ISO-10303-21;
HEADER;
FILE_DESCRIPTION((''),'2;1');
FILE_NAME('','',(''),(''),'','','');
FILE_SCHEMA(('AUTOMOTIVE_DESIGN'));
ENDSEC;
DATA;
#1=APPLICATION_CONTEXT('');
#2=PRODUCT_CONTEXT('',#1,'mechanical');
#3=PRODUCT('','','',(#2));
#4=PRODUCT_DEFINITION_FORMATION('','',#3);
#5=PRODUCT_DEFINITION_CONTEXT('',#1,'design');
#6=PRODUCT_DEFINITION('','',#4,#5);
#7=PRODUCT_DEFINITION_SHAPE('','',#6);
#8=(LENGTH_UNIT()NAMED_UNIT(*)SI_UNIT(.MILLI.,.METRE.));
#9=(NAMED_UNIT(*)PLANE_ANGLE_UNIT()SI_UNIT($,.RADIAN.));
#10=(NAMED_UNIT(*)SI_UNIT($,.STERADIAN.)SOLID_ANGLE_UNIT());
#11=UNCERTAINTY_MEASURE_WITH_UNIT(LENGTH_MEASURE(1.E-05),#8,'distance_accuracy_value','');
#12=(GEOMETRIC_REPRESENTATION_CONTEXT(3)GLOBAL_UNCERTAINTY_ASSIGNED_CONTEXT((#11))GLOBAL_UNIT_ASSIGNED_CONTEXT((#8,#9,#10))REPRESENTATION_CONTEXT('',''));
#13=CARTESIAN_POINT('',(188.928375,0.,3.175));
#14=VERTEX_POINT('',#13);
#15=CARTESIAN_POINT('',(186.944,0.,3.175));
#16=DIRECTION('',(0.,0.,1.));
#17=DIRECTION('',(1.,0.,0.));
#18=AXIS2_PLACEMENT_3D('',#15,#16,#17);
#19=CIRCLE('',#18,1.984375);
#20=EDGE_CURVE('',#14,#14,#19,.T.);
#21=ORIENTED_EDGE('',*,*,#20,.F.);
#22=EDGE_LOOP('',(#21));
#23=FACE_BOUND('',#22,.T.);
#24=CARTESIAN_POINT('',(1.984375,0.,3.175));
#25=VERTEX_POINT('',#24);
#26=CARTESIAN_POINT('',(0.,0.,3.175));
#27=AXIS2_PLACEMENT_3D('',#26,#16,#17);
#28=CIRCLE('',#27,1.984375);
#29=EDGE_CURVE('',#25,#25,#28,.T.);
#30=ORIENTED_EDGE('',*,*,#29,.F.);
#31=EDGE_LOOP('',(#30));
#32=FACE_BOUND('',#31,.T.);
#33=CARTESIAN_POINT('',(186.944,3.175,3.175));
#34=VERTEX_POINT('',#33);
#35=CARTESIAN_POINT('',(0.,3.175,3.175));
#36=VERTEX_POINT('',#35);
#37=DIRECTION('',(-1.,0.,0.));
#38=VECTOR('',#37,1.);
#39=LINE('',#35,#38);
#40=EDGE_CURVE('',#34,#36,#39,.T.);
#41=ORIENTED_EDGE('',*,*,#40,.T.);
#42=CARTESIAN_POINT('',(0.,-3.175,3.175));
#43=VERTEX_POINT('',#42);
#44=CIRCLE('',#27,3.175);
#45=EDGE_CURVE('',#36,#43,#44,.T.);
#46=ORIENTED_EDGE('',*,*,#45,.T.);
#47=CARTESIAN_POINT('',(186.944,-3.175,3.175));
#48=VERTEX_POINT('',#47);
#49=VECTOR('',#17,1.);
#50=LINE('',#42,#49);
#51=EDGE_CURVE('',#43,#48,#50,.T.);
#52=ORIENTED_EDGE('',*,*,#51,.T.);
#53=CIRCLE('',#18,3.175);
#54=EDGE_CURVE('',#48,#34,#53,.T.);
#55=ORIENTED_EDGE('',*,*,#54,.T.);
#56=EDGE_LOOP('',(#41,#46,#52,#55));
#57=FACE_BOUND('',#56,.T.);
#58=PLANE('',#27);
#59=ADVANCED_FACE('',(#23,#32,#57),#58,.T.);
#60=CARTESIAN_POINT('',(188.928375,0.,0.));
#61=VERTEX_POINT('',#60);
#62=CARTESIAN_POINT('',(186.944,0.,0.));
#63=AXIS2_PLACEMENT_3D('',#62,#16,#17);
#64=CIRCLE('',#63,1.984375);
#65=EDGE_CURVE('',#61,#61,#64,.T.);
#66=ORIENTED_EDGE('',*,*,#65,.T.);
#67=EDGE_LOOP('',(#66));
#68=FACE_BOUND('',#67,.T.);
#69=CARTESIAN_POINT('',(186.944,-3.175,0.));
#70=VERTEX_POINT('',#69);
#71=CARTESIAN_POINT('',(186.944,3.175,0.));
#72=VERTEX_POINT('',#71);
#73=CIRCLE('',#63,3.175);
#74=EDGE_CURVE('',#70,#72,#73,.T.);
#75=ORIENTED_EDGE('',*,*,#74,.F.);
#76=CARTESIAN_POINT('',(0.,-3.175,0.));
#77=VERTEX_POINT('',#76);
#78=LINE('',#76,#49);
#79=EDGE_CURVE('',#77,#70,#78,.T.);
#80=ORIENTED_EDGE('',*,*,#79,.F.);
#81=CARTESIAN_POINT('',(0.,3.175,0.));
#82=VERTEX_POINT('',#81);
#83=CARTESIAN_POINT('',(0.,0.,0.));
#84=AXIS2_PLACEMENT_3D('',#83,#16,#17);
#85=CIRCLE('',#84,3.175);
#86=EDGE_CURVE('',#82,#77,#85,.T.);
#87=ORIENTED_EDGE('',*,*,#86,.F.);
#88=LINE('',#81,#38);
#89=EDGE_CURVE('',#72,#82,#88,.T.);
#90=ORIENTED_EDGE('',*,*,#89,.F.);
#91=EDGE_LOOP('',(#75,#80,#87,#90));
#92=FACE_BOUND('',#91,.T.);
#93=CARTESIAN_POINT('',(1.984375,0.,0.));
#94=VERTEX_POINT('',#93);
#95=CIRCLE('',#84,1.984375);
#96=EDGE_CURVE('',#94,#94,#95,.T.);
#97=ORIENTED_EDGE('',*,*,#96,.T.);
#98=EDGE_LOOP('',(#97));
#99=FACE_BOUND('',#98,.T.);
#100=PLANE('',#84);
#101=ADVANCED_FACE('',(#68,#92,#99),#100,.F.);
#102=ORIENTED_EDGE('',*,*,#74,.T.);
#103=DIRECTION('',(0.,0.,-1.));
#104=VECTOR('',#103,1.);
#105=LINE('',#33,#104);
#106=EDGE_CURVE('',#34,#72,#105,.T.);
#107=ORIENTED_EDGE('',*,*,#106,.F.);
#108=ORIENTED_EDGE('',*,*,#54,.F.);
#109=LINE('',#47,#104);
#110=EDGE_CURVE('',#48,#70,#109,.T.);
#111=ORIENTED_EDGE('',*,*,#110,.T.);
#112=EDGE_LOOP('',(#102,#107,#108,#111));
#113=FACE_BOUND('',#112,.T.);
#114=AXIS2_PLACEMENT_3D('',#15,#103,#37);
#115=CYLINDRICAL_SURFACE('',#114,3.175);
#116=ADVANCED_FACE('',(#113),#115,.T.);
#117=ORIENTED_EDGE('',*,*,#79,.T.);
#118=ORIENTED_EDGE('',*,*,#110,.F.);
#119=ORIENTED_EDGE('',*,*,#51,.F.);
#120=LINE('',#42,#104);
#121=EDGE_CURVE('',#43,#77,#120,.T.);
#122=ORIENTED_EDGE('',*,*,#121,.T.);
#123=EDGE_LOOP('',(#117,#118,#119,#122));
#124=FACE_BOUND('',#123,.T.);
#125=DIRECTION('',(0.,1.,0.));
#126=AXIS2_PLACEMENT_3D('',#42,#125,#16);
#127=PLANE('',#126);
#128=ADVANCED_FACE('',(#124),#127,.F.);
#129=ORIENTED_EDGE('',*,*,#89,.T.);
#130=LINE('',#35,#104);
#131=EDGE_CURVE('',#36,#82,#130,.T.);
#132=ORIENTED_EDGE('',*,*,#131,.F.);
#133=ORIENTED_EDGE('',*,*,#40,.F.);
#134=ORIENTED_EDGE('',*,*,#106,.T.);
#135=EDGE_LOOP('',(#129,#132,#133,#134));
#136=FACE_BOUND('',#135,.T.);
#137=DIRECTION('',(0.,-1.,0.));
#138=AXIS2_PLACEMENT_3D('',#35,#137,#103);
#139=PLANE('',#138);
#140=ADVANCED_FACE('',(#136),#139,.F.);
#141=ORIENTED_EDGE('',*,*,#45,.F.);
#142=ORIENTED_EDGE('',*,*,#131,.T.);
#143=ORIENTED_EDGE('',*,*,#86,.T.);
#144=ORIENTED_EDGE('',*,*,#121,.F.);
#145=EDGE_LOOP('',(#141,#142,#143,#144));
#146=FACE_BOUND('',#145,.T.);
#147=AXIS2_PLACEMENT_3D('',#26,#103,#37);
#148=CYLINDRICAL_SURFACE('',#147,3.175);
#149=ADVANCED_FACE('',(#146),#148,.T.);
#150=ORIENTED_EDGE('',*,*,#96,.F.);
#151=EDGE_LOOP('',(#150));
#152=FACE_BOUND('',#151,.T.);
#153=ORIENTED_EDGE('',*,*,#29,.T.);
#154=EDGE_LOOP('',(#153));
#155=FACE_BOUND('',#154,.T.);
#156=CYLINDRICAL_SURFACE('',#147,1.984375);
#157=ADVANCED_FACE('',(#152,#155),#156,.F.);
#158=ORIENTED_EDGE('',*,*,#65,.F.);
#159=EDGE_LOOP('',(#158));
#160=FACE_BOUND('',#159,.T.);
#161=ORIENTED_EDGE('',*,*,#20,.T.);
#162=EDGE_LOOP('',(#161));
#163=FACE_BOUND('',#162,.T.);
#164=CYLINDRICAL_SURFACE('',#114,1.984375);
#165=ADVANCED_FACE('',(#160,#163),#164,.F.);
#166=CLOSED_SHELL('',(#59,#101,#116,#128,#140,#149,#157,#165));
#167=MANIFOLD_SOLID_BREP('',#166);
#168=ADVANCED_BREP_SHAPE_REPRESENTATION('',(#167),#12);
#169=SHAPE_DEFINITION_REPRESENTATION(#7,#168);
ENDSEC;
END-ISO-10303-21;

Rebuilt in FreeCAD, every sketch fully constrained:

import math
import FreeCAD as App
import Part
import Sketcher

V = App.Vector
Q = App.Units.Quantity

doc = App.newDocument("Part")
body = doc.addObject("PartDesign::Body", "Body")

sketch1 = body.newObject("Sketcher::SketchObject", "Sketch")
sketch1.AttachmentSupport = (doc.getObject("XY_Plane"), [""])
sketch1.MapMode = "FlatFace"
sketch1.addGeometry([
    Part.LineSegment(V(0, -3.2, 0), V(186.9, -3.2, 0)),
    Part.ArcOfCircle(Part.Circle(V(186.9, 0, 0), V(0, 0, 1), 3.2), math.radians(-90), math.radians(90)),
    Part.LineSegment(V(186.9, 3.2, 0), V(0, 3.2, 0)),
    Part.ArcOfCircle(Part.Circle(V(0, 0, 0), V(0, 0, 1), 3.2), math.radians(90), math.radians(270)),
    Part.Circle(V(0, 0, 0), V(0, 0, 1), 2),
    Part.Circle(V(186.9, 0, 0), V(0, 0, 1), 2),
], False)
sketch1.addConstraint([
    Sketcher.Constraint("Tangent", 0, 2, 1, 1),
    Sketcher.Constraint("Tangent", 1, 2, 2, 1),
    Sketcher.Constraint("Tangent", 2, 2, 3, 1),
    Sketcher.Constraint("Tangent", 3, 2, 0, 1),
    Sketcher.Constraint("Horizontal", 0),
    Sketcher.Constraint("Horizontal", 2),
    Sketcher.Constraint("Coincident", 3, 3, -1, 1),
    Sketcher.Constraint("Coincident", 4, 3, -1, 1),
    Sketcher.Constraint("Coincident", 5, 3, 1, 3),
    Sketcher.Constraint("Equal", 4, 5),
    Sketcher.Constraint("Diameter", 4, Q("0.15625 in")),
    Sketcher.Constraint("Radius", 1, Q("0.125 in")),
    Sketcher.Constraint("DistanceX", 0, 1, 0, 2, Q("7.36 in")),
])
pad1 = body.newObject("PartDesign::Pad", "Pad")
pad1.Profile = sketch1
pad1.Length = Q("0.125 in")

doc.recompute()
